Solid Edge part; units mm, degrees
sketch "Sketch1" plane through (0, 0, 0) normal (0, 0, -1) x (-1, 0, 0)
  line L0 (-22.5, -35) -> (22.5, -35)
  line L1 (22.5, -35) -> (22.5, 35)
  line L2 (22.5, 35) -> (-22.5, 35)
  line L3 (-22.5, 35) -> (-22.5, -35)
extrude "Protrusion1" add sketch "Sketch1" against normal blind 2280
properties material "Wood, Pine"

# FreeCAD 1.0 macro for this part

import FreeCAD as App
import Part
import Sketcher
from FreeCAD import Vector

doc = App.newDocument("Part")
body = doc.addObject("PartDesign::Body", "Body")

# Sketch on XY plane
sketch1 = body.newObject("Sketcher::SketchObject", "Sketch")
sketch1.AttachmentSupport = (doc.getObject("XY_Plane"), [""])
sketch1.MapMode = "FlatFace"
sketch1.addGeometry([
    Part.LineSegment(Vector(22, 35, 0), Vector(22, -35, 0)),
    Part.LineSegment(Vector(22, -35, 0), Vector(-22, -35, 0)),
    Part.LineSegment(Vector(-22, -35, 0), Vector(-22, 35, 0)),
    Part.LineSegment(Vector(-22, 35, 0), Vector(22, 35, 0)),
], False)
sketch1.addConstraint([
    Sketcher.Constraint("Coincident", 0, 2, 1, 1),
    Sketcher.Constraint("Coincident", 1, 2, 2, 1),
    Sketcher.Constraint("Coincident", 2, 2, 3, 1),
    Sketcher.Constraint("Coincident", 3, 2, 0, 1),
    Sketcher.Constraint("Vertical", 0),
    Sketcher.Constraint("Horizontal", 1),
    Sketcher.Constraint("Vertical", 2),
    Sketcher.Constraint("Horizontal", 3),
    Sketcher.Constraint("Symmetric", 0, 2, 2, 2, -1, 1),
    Sketcher.Constraint("DistanceX", 1, 2, 1, 1, 45.0),
    Sketcher.Constraint("DistanceY", 0, 2, 0, 1, 70.0),
])
pad1 = body.newObject("PartDesign::Pad", "Pad")
pad1.Profile = sketch1
pad1.Length = 2280

doc.recompute()
